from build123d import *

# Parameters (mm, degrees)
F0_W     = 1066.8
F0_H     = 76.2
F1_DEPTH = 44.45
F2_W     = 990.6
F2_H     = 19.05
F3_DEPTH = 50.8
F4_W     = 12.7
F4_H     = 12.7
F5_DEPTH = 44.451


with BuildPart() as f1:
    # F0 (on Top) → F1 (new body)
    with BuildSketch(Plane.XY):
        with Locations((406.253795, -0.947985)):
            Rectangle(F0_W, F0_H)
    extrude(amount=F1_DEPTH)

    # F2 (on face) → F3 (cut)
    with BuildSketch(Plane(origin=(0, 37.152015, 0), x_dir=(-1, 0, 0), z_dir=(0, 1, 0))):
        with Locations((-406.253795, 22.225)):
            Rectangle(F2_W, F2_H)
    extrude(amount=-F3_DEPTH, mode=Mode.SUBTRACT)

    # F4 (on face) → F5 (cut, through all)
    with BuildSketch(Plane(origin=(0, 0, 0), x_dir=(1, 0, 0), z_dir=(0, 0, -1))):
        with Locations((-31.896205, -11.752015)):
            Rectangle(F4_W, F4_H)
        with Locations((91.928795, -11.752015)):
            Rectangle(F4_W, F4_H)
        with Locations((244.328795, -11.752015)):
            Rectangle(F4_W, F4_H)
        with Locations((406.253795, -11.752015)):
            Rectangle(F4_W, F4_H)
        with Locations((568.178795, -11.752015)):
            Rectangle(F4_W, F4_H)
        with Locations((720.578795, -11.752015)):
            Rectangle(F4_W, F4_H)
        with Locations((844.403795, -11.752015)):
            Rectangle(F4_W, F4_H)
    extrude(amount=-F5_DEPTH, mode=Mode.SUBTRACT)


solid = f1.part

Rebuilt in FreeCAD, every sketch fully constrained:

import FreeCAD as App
import Part
import Sketcher
from FreeCAD import Vector
Q = App.Units.Quantity

doc = App.newDocument("Part")
params = doc.addObject("Spreadsheet::Sheet", "Params")
for row, (alias, value) in enumerate([
    ("sketch1_width", "42 in"),
    ("sketch1_height", "3 in"),
    ("pad1_length", "1.75 in"),
    ("sketch2_width", "39 in"),
    ("sketch2_height", "0.75 in"),
    ("pocket1_length", "2 in"),
    ("sketch3_width", "0.5 in"),
], start=1):
    params.set(f"A{row}", alias)
    params.set(f"B{row}", "=" + value)
    params.setAlias(f"B{row}", alias)

body = doc.addObject("PartDesign::Body", "Body")

# Sketch on XY plane
sketch1 = body.newObject("Sketcher::SketchObject", "Sketch")
sketch1.AttachmentSupport = (doc.getObject("XY_Plane"), [""])
sketch1.MapMode = "FlatFace"
sketch1.addGeometry([
    Part.LineSegment(Vector(-127.146205, 37.152015, 0), Vector(-127.146205, -39.047985, 0)),
    Part.LineSegment(Vector(-127.146205, -39.047985, 0), Vector(939.653795, -39.047985, 0)),
    Part.LineSegment(Vector(939.653795, -39.047985, 0), Vector(939.653795, 37.152015, 0)),
    Part.LineSegment(Vector(939.653795, 37.152015, 0), Vector(-127.146205, 37.152015, 0)),
], False)
sketch1.addConstraint([
    Sketcher.Constraint("Coincident", 0, 2, 1, 1),
    Sketcher.Constraint("Coincident", 1, 2, 2, 1),
    Sketcher.Constraint("Coincident", 2, 2, 3, 1),
    Sketcher.Constraint("Coincident", 3, 2, 0, 1),
    Sketcher.Constraint("Vertical", 0),
    Sketcher.Constraint("Horizontal", 1),
    Sketcher.Constraint("Vertical", 2),
    Sketcher.Constraint("Horizontal", 3),
    Sketcher.Constraint("DistanceX", 1, 1, 1, 2, Q("42 in")),
    Sketcher.Constraint("DistanceY", 0, 2, 0, 1, Q("3 in")),
    Sketcher.Constraint("DistanceX", 0, 2, -1, 1, 127.146205),
    Sketcher.Constraint("DistanceY", 0, 2, -1, 1, 39.047985),
])
sketch1.setExpression("Constraints[8]", "Params.sketch1_width")
sketch1.setExpression("Constraints[9]", "Params.sketch1_height")
pad1 = body.newObject("PartDesign::Pad", "Pad")
pad1.Profile = sketch1
pad1.setExpression("Length", "Params.pad1_length")

# Sketch on XZ plane
sketch2 = body.newObject("Sketcher::SketchObject", "Sketch001")
sketch2.AttachmentSupport = (doc.getObject("XZ_Plane"), [""])
sketch2.MapMode = "FlatFace"
sketch2.AttachmentOffset = App.Placement(Vector(0, 0, -37.152015), App.Rotation())
sketch2.addGeometry([
    Part.LineSegment(Vector(901.553795, 31.75, 0), Vector(901.553795, 12.7, 0)),
    Part.LineSegment(Vector(901.553795, 12.7, 0), Vector(-89.046205, 12.7, 0)),
    Part.LineSegment(Vector(-89.046205, 12.7, 0), Vector(-89.046205, 31.75, 0)),
    Part.LineSegment(Vector(-89.046205, 31.75, 0), Vector(901.553795, 31.75, 0)),
], False)
sketch2.addConstraint([
    Sketcher.Constraint("Coincident", 0, 2, 1, 1),
    Sketcher.Constraint("Coincident", 1, 2, 2, 1),
    Sketcher.Constraint("Coincident", 2, 2, 3, 1),
    Sketcher.Constraint("Coincident", 3, 2, 0, 1),
    Sketcher.Constraint("Vertical", 0),
    Sketcher.Constraint("Horizontal", 1),
    Sketcher.Constraint("Vertical", 2),
    Sketcher.Constraint("Horizontal", 3),
    Sketcher.Constraint("DistanceX", 1, 2, 1, 1, Q("39 in")),
    Sketcher.Constraint("DistanceY", 0, 2, 0, 1, Q("0.75 in")),
    Sketcher.Constraint("DistanceY", -1, 1, 0, 2, Q("0.5 in")),
    Sketcher.Constraint("DistanceX", -1, 1, 0, 2, 901.553795),
])
sketch2.setExpression("Constraints[8]", "Params.sketch2_width")
sketch2.setExpression("Constraints[9]", "Params.sketch2_height")
pocket1 = body.newObject("PartDesign::Pocket", "Pocket")
pocket1.Profile = sketch2
pocket1.setExpression("Length", "Params.pocket1_length")
pocket1.Reversed = True

# Sketch on XY plane
sketch3 = body.newObject("Sketcher::SketchObject", "Sketch002")
sketch3.AttachmentSupport = (doc.getObject("XY_Plane"), [""])
sketch3.MapMode = "FlatFace"
sketch3.addGeometry([
    Part.LineSegment(Vector(-38.246205, 5.402015, 0), Vector(-38.246205, 18.102015, 0)),  # 0
    Part.LineSegment(Vector(-38.246205, 18.102015, 0), Vector(-25.546205, 18.102015, 0)),  # 1
    Part.LineSegment(Vector(-25.546205, 18.102015, 0), Vector(-25.546205, 5.402015, 0)),  # 2
    Part.LineSegment(Vector(-25.546205, 5.402015, 0), Vector(-38.246205, 5.402015, 0)),  # 3
    Part.LineSegment(Vector(85.578795, 5.402015, 0), Vector(85.578795, 18.102015, 0)),  # 4
    Part.LineSegment(Vector(85.578795, 18.102015, 0), Vector(98.278795, 18.102015, 0)),  # 5
    Part.LineSegment(Vector(98.278795, 18.102015, 0), Vector(98.278795, 5.402015, 0)),  # 6
    Part.LineSegment(Vector(98.278795, 5.402015, 0), Vector(85.578795, 5.402015, 0)),  # 7
    Part.LineSegment(Vector(237.978795, 5.402015, 0), Vector(237.978795, 18.102015, 0)),  # 8
    Part.LineSegment(Vector(237.978795, 18.102015, 0), Vector(250.678795, 18.102015, 0)),  # 9
    Part.LineSegment(Vector(250.678795, 18.102015, 0), Vector(250.678795, 5.402015, 0)),  # 10
    Part.LineSegment(Vector(250.678795, 5.402015, 0), Vector(237.978795, 5.402015, 0)),  # 11
    Part.LineSegment(Vector(399.903795, 5.402015, 0), Vector(399.903795, 18.102015, 0)),  # 12
    Part.LineSegment(Vector(399.903795, 18.102015, 0), Vector(412.603795, 18.102015, 0)),  # 13
    Part.LineSegment(Vector(412.603795, 18.102015, 0), Vector(412.603795, 5.402015, 0)),  # 14
    Part.LineSegment(Vector(412.603795, 5.402015, 0), Vector(399.903795, 5.402015, 0)),  # 15
    Part.LineSegment(Vector(561.828795, 5.402015, 0), Vector(561.828795, 18.102015, 0)),  # 16
    Part.LineSegment(Vector(561.828795, 18.102015, 0), Vector(574.528795, 18.102015, 0)),  # 17
    Part.LineSegment(Vector(574.528795, 18.102015, 0), Vector(574.528795, 5.402015, 0)),  # 18
    Part.LineSegment(Vector(574.528795, 5.402015, 0), Vector(561.828795, 5.402015, 0)),  # 19
    Part.LineSegment(Vector(714.228795, 5.402015, 0), Vector(714.228795, 18.102015, 0)),  # 20
    Part.LineSegment(Vector(714.228795, 18.102015, 0), Vector(726.928795, 18.102015, 0)),  # 21
    Part.LineSegment(Vector(726.928795, 18.102015, 0), Vector(726.928795, 5.402015, 0)),  # 22
    Part.LineSegment(Vector(726.928795, 5.402015, 0), Vector(714.228795, 5.402015, 0)),  # 23
    Part.LineSegment(Vector(838.053795, 5.402015, 0), Vector(838.053795, 18.102015, 0)),  # 24
    Part.LineSegment(Vector(838.053795, 18.102015, 0), Vector(850.753795, 18.102015, 0)),  # 25
    Part.LineSegment(Vector(850.753795, 18.102015, 0), Vector(850.753795, 5.402015, 0)),  # 26
    Part.LineSegment(Vector(850.753795, 5.402015, 0), Vector(838.053795, 5.402015, 0)),  # 27
], False)
sketch3.addConstraint([
    Sketcher.Constraint("Coincident", 0, 2, 1, 1),
    Sketcher.Constraint("Coincident", 1, 2, 2, 1),
    Sketcher.Constraint("Coincident", 2, 2, 3, 1),
    Sketcher.Constraint("Coincident", 3, 2, 0, 1),
    Sketcher.Constraint("Coincident", 4, 2, 5, 1),
    Sketcher.Constraint("Coincident", 5, 2, 6, 1),
    Sketcher.Constraint("Coincident", 6, 2, 7, 1),
    Sketcher.Constraint("Coincident", 7, 2, 4, 1),
    Sketcher.Constraint("Coincident", 8, 2, 9, 1),
    Sketcher.Constraint("Coincident", 9, 2, 10, 1),
    Sketcher.Constraint("Coincident", 10, 2, 11, 1),
    Sketcher.Constraint("Coincident", 11, 2, 8, 1),
    Sketcher.Constraint("Coincident", 12, 2, 13, 1),
    Sketcher.Constraint("Coincident", 13, 2, 14, 1),
    Sketcher.Constraint("Coincident", 14, 2, 15, 1),
    Sketcher.Constraint("Coincident", 15, 2, 12, 1),
    Sketcher.Constraint("Coincident", 16, 2, 17, 1),
    Sketcher.Constraint("Coincident", 17, 2, 18, 1),
    Sketcher.Constraint("Coincident", 18, 2, 19, 1),
    Sketcher.Constraint("Coincident", 19, 2, 16, 1),
    Sketcher.Constraint("Coincident", 20, 2, 21, 1),
    Sketcher.Constraint("Coincident", 21, 2, 22, 1),
    Sketcher.Constraint("Coincident", 22, 2, 23, 1),
    Sketcher.Constraint("Coincident", 23, 2, 20, 1),
    Sketcher.Constraint("Coincident", 24, 2, 25, 1),
    Sketcher.Constraint("Coincident", 25, 2, 26, 1),
    Sketcher.Constraint("Coincident", 26, 2, 27, 1),
    Sketcher.Constraint("Coincident", 27, 2, 24, 1),
    Sketcher.Constraint("Vertical", 0),
    Sketcher.Constraint("Horizontal", 1),
    Sketcher.Constraint("Vertical", 2),
    Sketcher.Constraint("Horizontal", 3),
    Sketcher.Constraint("Vertical", 4),
    Sketcher.Constraint("Horizontal", 5),
    Sketcher.Constraint("Vertical", 6),
    Sketcher.Constraint("Horizontal", 7),
    Sketcher.Constraint("Vertical", 8),
    Sketcher.Constraint("Horizontal", 9),
    Sketcher.Constraint("Vertical", 10),
    Sketcher.Constraint("Horizontal", 11),
    Sketcher.Constraint("Vertical", 12),
    Sketcher.Constraint("Horizontal", 13),
    Sketcher.Constraint("Vertical", 14),
    Sketcher.Constraint("Horizontal", 15),
    Sketcher.Constraint("Vertical", 16),
    Sketcher.Constraint("Horizontal", 17),
    Sketcher.Constraint("Vertical", 18),
    Sketcher.Constraint("Horizontal", 19),
    Sketcher.Constraint("Vertical", 20),
    Sketcher.Constraint("Horizontal", 21),
    Sketcher.Constraint("Vertical", 22),
    Sketcher.Constraint("Horizontal", 23),
    Sketcher.Constraint("Vertical", 24),
    Sketcher.Constraint("Horizontal", 25),
    Sketcher.Constraint("Vertical", 26),
    Sketcher.Constraint("Horizontal", 27),
    Sketcher.Constraint("Horizontal", 1, 2, 4, 2),
    Sketcher.Constraint("Horizontal", 3, 2, 6, 2),
    Sketcher.Constraint("Horizontal", 5, 2, 8, 2),
    Sketcher.Constraint("Horizontal", 7, 2, 10, 2),
    Sketcher.Constraint("Horizontal", 9, 2, 12, 2),
    Sketcher.Constraint("Horizontal", 11, 2, 14, 2),
    Sketcher.Constraint("Horizontal", 13, 2, 16, 2),
    Sketcher.Constraint("Horizontal", 15, 2, 18, 2),
    Sketcher.Constraint("Horizontal", 17, 2, 20, 2),
    Sketcher.Constraint("Horizontal", 19, 2, 22, 2),
    Sketcher.Constraint("Horizontal", 21, 2, 24, 2),
    Sketcher.Constraint("Horizontal", 23, 2, 26, 2),
    Sketcher.Constraint("Equal", 3, 5),
    Sketcher.Constraint("Equal", 7, 9),
    Sketcher.Constraint("Equal", 11, 13),
    Sketcher.Constraint("Equal", 15, 17),
    Sketcher.Constraint("Equal", 19, 21),
    Sketcher.Constraint("Equal", 23, 25),
    Sketcher.Constraint("Equal", 27, 0),
    Sketcher.Constraint("DistanceX", 1, 1, 1, 2, Q("0.5 in")),
    Sketcher.Constraint("DistanceX", 4, 2, 8, 2, Q("6 in")),
    Sketcher.Constraint("DistanceX", 16, 2, 20, 2, Q("6 in")),
    Sketcher.Constraint("DistanceX", 9, 2, 16, 2, Q("12.25 in")),
    Sketcher.Constraint("DistanceX", 1, 2, 4, 2, Q("4.375 in")),
    Sketcher.Constraint("DistanceX", 9, 2, 12, 2, Q("5.875 in")),
    Sketcher.Constraint("DistanceX", 21, 2, 24, 2, Q("4.375 in")),
    Sketcher.Constraint("DistanceX", 0, 2, -1, 1, 38.246205),
    Sketcher.Constraint("DistanceY", -1, 1, 0, 2, 18.102015),
])
sketch3.setExpression("Constraints[75]", "Params.sketch3_width")
pocket2 = body.newObject("PartDesign::Pocket", "Pocket001")
pocket2.Profile = sketch3
pocket2.Type = "ThroughAll"
pocket2.Reversed = True

doc.recompute()
